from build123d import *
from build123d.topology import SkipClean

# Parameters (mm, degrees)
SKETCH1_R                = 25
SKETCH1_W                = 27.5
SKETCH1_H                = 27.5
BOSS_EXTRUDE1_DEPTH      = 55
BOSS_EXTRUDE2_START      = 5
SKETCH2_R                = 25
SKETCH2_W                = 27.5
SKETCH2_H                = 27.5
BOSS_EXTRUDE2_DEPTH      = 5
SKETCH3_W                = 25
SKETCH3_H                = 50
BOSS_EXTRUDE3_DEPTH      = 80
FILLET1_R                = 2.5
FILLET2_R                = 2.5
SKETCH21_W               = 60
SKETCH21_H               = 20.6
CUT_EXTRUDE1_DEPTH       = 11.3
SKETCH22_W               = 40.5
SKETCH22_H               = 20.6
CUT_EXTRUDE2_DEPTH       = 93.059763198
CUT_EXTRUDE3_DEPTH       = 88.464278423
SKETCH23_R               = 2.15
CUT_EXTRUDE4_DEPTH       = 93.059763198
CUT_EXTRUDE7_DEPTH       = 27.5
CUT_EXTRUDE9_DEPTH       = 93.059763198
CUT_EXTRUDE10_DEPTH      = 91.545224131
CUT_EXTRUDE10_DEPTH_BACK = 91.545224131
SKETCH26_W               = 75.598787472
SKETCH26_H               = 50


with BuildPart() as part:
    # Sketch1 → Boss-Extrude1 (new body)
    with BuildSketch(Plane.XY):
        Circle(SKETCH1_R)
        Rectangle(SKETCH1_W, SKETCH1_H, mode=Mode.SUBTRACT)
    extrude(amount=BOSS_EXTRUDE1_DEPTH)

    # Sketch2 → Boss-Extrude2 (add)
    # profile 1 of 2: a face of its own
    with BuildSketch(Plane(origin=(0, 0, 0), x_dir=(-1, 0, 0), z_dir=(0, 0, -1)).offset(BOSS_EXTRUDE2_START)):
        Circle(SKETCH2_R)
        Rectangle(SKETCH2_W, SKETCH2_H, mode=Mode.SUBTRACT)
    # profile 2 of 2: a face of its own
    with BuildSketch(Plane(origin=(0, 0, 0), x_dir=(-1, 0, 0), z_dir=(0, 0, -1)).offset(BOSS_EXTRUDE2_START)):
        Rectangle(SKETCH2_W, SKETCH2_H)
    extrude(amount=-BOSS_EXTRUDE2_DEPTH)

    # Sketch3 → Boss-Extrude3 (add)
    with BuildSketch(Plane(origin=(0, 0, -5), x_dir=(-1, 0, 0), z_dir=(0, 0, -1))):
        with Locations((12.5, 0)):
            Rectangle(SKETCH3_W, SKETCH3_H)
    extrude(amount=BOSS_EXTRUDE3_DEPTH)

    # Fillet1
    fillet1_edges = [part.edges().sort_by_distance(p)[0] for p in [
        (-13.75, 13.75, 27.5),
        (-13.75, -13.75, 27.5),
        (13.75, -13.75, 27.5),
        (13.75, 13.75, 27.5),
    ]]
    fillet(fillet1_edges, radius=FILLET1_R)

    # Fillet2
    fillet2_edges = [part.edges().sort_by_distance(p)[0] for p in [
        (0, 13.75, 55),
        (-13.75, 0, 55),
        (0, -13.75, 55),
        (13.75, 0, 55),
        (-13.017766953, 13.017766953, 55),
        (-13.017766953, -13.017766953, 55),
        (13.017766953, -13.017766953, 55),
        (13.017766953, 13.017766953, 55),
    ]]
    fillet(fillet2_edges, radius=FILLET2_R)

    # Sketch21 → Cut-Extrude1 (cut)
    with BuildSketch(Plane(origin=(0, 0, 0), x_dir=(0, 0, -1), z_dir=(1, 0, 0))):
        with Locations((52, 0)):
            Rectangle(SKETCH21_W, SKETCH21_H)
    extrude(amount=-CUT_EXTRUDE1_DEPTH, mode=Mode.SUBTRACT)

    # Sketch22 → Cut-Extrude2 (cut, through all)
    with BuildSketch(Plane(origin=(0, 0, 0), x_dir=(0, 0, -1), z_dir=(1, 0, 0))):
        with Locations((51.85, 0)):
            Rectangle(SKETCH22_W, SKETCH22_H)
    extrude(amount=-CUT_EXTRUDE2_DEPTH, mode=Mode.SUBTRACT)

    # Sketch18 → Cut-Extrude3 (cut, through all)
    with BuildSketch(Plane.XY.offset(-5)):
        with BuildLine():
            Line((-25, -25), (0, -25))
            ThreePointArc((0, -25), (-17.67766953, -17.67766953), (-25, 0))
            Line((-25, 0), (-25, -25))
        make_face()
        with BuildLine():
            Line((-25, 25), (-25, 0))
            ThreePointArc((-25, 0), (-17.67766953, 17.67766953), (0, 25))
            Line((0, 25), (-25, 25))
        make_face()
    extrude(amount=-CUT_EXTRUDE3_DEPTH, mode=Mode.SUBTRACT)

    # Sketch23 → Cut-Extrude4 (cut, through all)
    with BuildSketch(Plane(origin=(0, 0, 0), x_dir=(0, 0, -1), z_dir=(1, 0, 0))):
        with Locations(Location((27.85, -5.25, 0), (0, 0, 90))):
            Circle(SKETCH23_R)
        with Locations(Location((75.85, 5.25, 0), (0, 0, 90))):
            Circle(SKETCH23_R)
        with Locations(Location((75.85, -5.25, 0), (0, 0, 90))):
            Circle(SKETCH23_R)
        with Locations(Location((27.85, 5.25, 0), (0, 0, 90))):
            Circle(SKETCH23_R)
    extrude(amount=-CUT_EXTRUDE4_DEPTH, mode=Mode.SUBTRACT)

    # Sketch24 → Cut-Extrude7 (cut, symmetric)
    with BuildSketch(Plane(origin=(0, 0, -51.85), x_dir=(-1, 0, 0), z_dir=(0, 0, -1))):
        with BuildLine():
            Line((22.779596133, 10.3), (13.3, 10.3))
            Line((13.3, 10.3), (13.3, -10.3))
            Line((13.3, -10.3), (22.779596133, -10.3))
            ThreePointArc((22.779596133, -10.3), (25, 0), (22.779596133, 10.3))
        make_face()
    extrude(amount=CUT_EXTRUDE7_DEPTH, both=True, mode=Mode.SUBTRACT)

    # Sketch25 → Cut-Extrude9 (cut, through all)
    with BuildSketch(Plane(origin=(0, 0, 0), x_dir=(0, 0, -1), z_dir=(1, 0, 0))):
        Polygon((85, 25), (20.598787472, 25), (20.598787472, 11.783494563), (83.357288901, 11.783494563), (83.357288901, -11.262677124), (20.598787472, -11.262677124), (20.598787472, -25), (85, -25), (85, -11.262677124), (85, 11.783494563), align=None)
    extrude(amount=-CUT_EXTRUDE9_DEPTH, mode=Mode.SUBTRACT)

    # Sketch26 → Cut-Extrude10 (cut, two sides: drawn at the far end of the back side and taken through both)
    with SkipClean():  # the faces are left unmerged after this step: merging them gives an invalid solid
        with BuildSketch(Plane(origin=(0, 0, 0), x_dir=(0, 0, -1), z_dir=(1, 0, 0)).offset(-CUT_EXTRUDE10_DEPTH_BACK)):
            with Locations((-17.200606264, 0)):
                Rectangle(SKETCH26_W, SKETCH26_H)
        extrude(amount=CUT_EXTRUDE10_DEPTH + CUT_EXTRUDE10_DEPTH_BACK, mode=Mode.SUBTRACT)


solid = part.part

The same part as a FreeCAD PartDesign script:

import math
import FreeCAD as App
import Part
import Sketcher


def edges_at(feature, points):
    """Names of the edges that pass closest to the given points."""
    edges = feature.Shape.Edges
    near = lambda p: min(range(len(edges)), key=lambda i: edges[i].distToShape(Part.Vertex(*p))[0])
    return sorted({f"Edge{near(p) + 1}" for p in points})


def add_polygon(sketch, points):
    """Adds a closed chain of lines whose ends are joined by coincident constraints."""
    first, n = sketch.GeometryCount, len(points)
    for a, b in zip(points, points[1:] + points[:1]):
        sketch.addGeometry(Part.LineSegment(App.Vector(*a, 0), App.Vector(*b, 0)), False)
    for i in range(n):
        sketch.addConstraint(Sketcher.Constraint("Coincident", first + i, 2, first + (i + 1) % n, 1))

doc = App.newDocument("Part")
params = doc.addObject("Spreadsheet::Sheet", "Params")
for row, (alias, value) in enumerate([
    ("sketch1_diameter", "50 mm"),
    ("sketch1_width", "27.5 mm"),
    ("pad1_length", "55 mm"),
    ("sketch2_diameter", "50 mm"),
    ("pad2_length", "5 mm"),
    ("sketch3_width", "25 mm"),
    ("sketch3_height", "50 mm"),
    ("pad3_length", "80 mm"),
    ("fillet_radius", "2.5 mm"),
    ("fillet2_radius", "2.5 mm"),
    ("sketch4_height", "60 mm"),
    ("sketch4_width", "20.6 mm"),
    ("pocket1_length", "11.3 mm"),
    ("sketch5_width", "20.6 mm"),
    ("sketch5_height", "40.5 mm"),
    ("sketch6_radius", "25 mm"),
    ("sketch7_diameter", "4.3 mm"),
    ("sketch8_radius", "25 mm"),
    ("sketch8_height", "20.6 mm"),
    ("pocket5_length", "55 mm"),
    ("sketch9_width", "50 mm"),
    ("sketch10_width", "50 mm"),
], start=1):
    params.set(f"A{row}", alias)
    params.set(f"B{row}", "=" + value)
    params.setAlias(f"B{row}", alias)

body = doc.addObject("PartDesign::Body", "Body")

# Sketch on XY plane
sketch1 = doc.addObject("Sketcher::SketchObject", "Sketch")
body.addObject(sketch1)
sketch1.AttachmentSupport = (doc.XY_Plane, [""])
sketch1.MapMode = "FlatFace"
sketch1.addGeometry(Part.Circle(App.Vector(0, 0, 0), App.Vector(0, 0, 1), 25), False)  # 0
add_polygon(sketch1, [(14, -14), (-14, -14), (-14, 14), (14, 14)])  # lines 1-4
sketch1.addConstraint([
    Sketcher.Constraint("Horizontal", 1),
    Sketcher.Constraint("Vertical", 2),
    Sketcher.Constraint("Horizontal", 3),
    Sketcher.Constraint("Vertical", 4),
    Sketcher.Constraint("Coincident", 0, 3, -1, 1),
    Sketcher.Constraint("Symmetric", 1, 2, 3, 2, -1, 1),
    Sketcher.Constraint("Equal", 3, 2),
    Sketcher.Constraint("Diameter", 0, 50.0),
    Sketcher.Constraint("DistanceX", 1, 2, 1, 1, 27.5),
])
sketch1.setExpression("Constraints[11]", "Params.sketch1_diameter")
sketch1.setExpression("Constraints[12]", "Params.sketch1_width")
pad1 = doc.addObject("PartDesign::Pad", "Pad")
body.addObject(pad1)
pad1.Profile = sketch1
pad1.setExpression("Length", "Params.pad1_length")

# Sketch on XY plane
sketch2 = doc.addObject("Sketcher::SketchObject", "Sketch001")
body.addObject(sketch2)
sketch2.AttachmentSupport = (doc.XY_Plane, [""])
sketch2.MapMode = "FlatFace"
sketch2.AttachmentOffset = App.Placement(App.Vector(0, 0, -5), App.Rotation())
sketch2.addGeometry(Part.Circle(App.Vector(0, 0, 0), App.Vector(0, 0, 1), 25), False)
sketch2.addConstraint([
    Sketcher.Constraint("Coincident", 0, 3, -1, 1),
    Sketcher.Constraint("Diameter", 0, 50.0),
])
sketch2.setExpression("Constraints[1]", "Params.sketch2_diameter")
pad2 = doc.addObject("PartDesign::Pad", "Pad001")
body.addObject(pad2)
pad2.Profile = sketch2
pad2.setExpression("Length", "Params.pad2_length")

# Sketch on XY plane
sketch3 = doc.addObject("Sketcher::SketchObject", "Sketch002")
body.addObject(sketch3)
sketch3.AttachmentSupport = (doc.XY_Plane, [""])
sketch3.MapMode = "FlatFace"
sketch3.AttachmentOffset = App.Placement(App.Vector(0, 0, -5), App.Rotation())
add_polygon(sketch3, [(0, 25), (0, -25), (-25, -25), (-25, 25)])  # lines 0-3
sketch3.addConstraint([
    Sketcher.Constraint("Vertical", 0),
    Sketcher.Constraint("Horizontal", 1),
    Sketcher.Constraint("Vertical", 2),
    Sketcher.Constraint("Horizontal", 3),
    Sketcher.Constraint("Symmetric", 0, 2, 3, 2, -1, 1),
    Sketcher.Constraint("DistanceX", 1, 2, 1, 1, 25.0),
    Sketcher.Constraint("DistanceY", 0, 2, 0, 1, 50.0),
])
sketch3.setExpression("Constraints[9]", "Params.sketch3_width")
sketch3.setExpression("Constraints[10]", "Params.sketch3_height")
pad3 = doc.addObject("PartDesign::Pad", "Pad002")
body.addObject(pad3)
pad3.Profile = sketch3
pad3.setExpression("Length", "Params.pad3_length")
pad3.Reversed = True
doc.recompute()

fillet = doc.addObject("PartDesign::Fillet", "Fillet")
body.addObject(fillet)
fillet.Base = (pad3, edges_at(pad3, [
    (-13.75, 13.75, 27.5),
    (-13.75, -13.75, 27.5),
    (13.75, -13.75, 27.5),
    (13.75, 13.75, 27.5),
]))
fillet.setExpression("Radius", "Params.fillet_radius")
doc.recompute()

fillet2 = doc.addObject("PartDesign::Fillet", "Fillet001")
body.addObject(fillet2)
fillet2.Base = (fillet, edges_at(fillet, [
    (0, 13.75, 55),
    (-13.75, 0, 55),
    (0, -13.75, 55),
    (13.75, 0, 55),
    (-13.018, 13.018, 55),
    (-13.018, -13.018, 55),
    (13.018, -13.018, 55),
    (13.018, 13.018, 55),
]))
fillet2.setExpression("Radius", "Params.fillet2_radius")

# Sketch on YZ plane
sketch4 = doc.addObject("Sketcher::SketchObject", "Sketch003")
body.addObject(sketch4)
sketch4.AttachmentSupport = (doc.YZ_Plane, [""])
sketch4.MapMode = "FlatFace"
add_polygon(sketch4, [(10, -22), (-10, -22), (-10, -82), (10, -82)])  # lines 0-3
sketch4.addConstraint([
    Sketcher.Constraint("Horizontal", 0),
    Sketcher.Constraint("Vertical", 1),
    Sketcher.Constraint("Horizontal", 2),
    Sketcher.Constraint("Vertical", 3),
    Sketcher.Constraint("DistanceY", 1, 2, 1, 1, 60.0),
    Sketcher.Constraint("DistanceX", 0, 2, 0, 1, 20.6),
    Sketcher.Constraint("DistanceY", 0, 2, -1, 1, 22.0),
    Sketcher.Constraint("DistanceX", 0, 2, -1, 1, 10.3),
])
sketch4.setExpression("Constraints[8]", "Params.sketch4_height")
sketch4.setExpression("Constraints[9]", "Params.sketch4_width")
pocket1 = doc.addObject("PartDesign::Pocket", "Pocket")
body.addObject(pocket1)
pocket1.Profile = sketch4
pocket1.setExpression("Length", "Params.pocket1_length")

# Sketch on YZ plane
sketch5 = doc.addObject("Sketcher::SketchObject", "Sketch004")
body.addObject(sketch5)
sketch5.AttachmentSupport = (doc.YZ_Plane, [""])
sketch5.MapMode = "FlatFace"
add_polygon(sketch5, [(10, -32), (-10, -32), (-10, -72), (10, -72)])  # lines 0-3
sketch5.addConstraint([
    Sketcher.Constraint("Horizontal", 0),
    Sketcher.Constraint("Vertical", 1),
    Sketcher.Constraint("Horizontal", 2),
    Sketcher.Constraint("Vertical", 3),
    Sketcher.Constraint("DistanceX", 0, 2, 0, 1, 20.6),
    Sketcher.Constraint("DistanceY", 1, 2, 1, 1, 40.5),
    Sketcher.Constraint("DistanceX", 0, 2, -1, 1, 10.3),
    Sketcher.Constraint("DistanceY", 0, 2, -1, 1, 31.6),
])
sketch5.setExpression("Constraints[8]", "Params.sketch5_width")
sketch5.setExpression("Constraints[9]", "Params.sketch5_height")
pocket2 = doc.addObject("PartDesign::Pocket", "Pocket001")
body.addObject(pocket2)
pocket2.Profile = sketch5
pocket2.Type = "ThroughAll"

# Sketch on XY plane
sketch6 = doc.addObject("Sketcher::SketchObject", "Sketch005")
body.addObject(sketch6)
sketch6.AttachmentSupport = (doc.XY_Plane, [""])
sketch6.MapMode = "FlatFace"
sketch6.AttachmentOffset = App.Placement(App.Vector(0, 0, -5), App.Rotation())
sketch6.addGeometry([
    Part.LineSegment(App.Vector(-25, -25, 0), App.Vector(0, -25, 0)),  # 0
    Part.ArcOfCircle(Part.Circle(App.Vector(0, 0, 0), App.Vector(0, 0, 1), 25), math.radians(180), math.radians(270)),  # 1
    Part.LineSegment(App.Vector(-25, 0, 0), App.Vector(-25, -25, 0)),  # 2
    Part.LineSegment(App.Vector(-25, 25, 0), App.Vector(-25, 0, 0)),  # 3
    Part.ArcOfCircle(Part.Circle(App.Vector(0, 0, 0), App.Vector(0, 0, 1), 25), math.radians(90), math.radians(180)),  # 4
    Part.LineSegment(App.Vector(0, 25, 0), App.Vector(-25, 25, 0)),  # 5
], False)
sketch6.addConstraint([
    Sketcher.Constraint("Tangent", 0, 2, 1, 2),
    Sketcher.Constraint("Tangent", 1, 1, 2, 1),
    Sketcher.Constraint("Coincident", 2, 2, 0, 1),
    Sketcher.Constraint("Tangent", 3, 2, 4, 2),
    Sketcher.Constraint("Tangent", 4, 1, 5, 1),
    Sketcher.Constraint("Coincident", 5, 2, 3, 1),
    Sketcher.Constraint("Horizontal", 0),
    Sketcher.Constraint("Vertical", 2),
    Sketcher.Constraint("Vertical", 3),
    Sketcher.Constraint("Horizontal", 5),
    Sketcher.Constraint("Coincident", 1, 3, -1, 1),
    Sketcher.Constraint("Coincident", 4, 3, -1, 1),
    Sketcher.Constraint("Equal", 1, 4),
    Sketcher.Constraint("Radius", 1, 25.0),
])
sketch6.setExpression("Constraints[13]", "Params.sketch6_radius")
pocket3 = doc.addObject("PartDesign::Pocket", "Pocket002")
body.addObject(pocket3)
pocket3.Profile = sketch6
pocket3.Type = "ThroughAll"

# Sketch on YZ plane
sketch7 = doc.addObject("Sketcher::SketchObject", "Sketch006")
body.addObject(sketch7)
sketch7.AttachmentSupport = (doc.YZ_Plane, [""])
sketch7.MapMode = "FlatFace"
sketch7.addGeometry([
    Part.Circle(App.Vector(-5.2, -27.9, 0), App.Vector(0, 0, 1), 2.1),
    Part.Circle(App.Vector(5.2, -75.8, 0), App.Vector(0, 0, 1), 2.1),
    Part.Circle(App.Vector(-5.2, -75.8, 0), App.Vector(0, 0, 1), 2.1),
    Part.Circle(App.Vector(5.2, -27.9, 0), App.Vector(0, 0, 1), 2.1),
], False)
sketch7.addConstraint([
    Sketcher.Constraint("Equal", 0, 1),
    Sketcher.Constraint("Equal", 1, 2),
    Sketcher.Constraint("Equal", 2, 3),
    Sketcher.Constraint("Symmetric", 1, 3, 2, 3, -2),
    Sketcher.Constraint("Symmetric", 0, 3, 3, 3, -2),
    Sketcher.Constraint("Vertical", 0, 3, 2, 3),
    Sketcher.Constraint("Diameter", 0, 4.3),
    Sketcher.Constraint("DistanceY", 1, 3, 0, 3, 48.0),
    Sketcher.Constraint("DistanceX", 0, 3, 1, 3, 10.5),
    Sketcher.Constraint("DistanceY", 0, 3, -1, 1, 27.85),
])
sketch7.setExpression("Constraints[6]", "Params.sketch7_diameter")
pocket4 = doc.addObject("PartDesign::Pocket", "Pocket003")
body.addObject(pocket4)
pocket4.Profile = sketch7
pocket4.Type = "ThroughAll"

# Sketch on XY plane
sketch8 = doc.addObject("Sketcher::SketchObject", "Sketch007")
body.addObject(sketch8)
sketch8.AttachmentSupport = (doc.XY_Plane, [""])
sketch8.MapMode = "FlatFace"
sketch8.AttachmentOffset = App.Placement(App.Vector(0, 0, -51.85), App.Rotation())
sketch8.addGeometry([
    Part.LineSegment(App.Vector(-23, 10, 0), App.Vector(-13, 10, 0)),
    Part.LineSegment(App.Vector(-13, 10, 0), App.Vector(-13, -10, 0)),
    Part.LineSegment(App.Vector(-13, -10, 0), App.Vector(-23, -10, 0)),
    Part.ArcOfCircle(Part.Circle(App.Vector(0, 0, 0), App.Vector(0, 0, 1), 25), math.radians(156), math.radians(204)),
], False)
sketch8.addConstraint([
    Sketcher.Constraint("Coincident", 0, 2, 1, 1),
    Sketcher.Constraint("Coincident", 1, 2, 2, 1),
    Sketcher.Constraint("Coincident", 2, 2, 3, 2),
    Sketcher.Constraint("Coincident", 3, 1, 0, 1),
    Sketcher.Constraint("Horizontal", 0),
    Sketcher.Constraint("Vertical", 1),
    Sketcher.Constraint("Horizontal", 2),
    Sketcher.Constraint("Coincident", 3, 3, -1, 1),
    Sketcher.Constraint("Vertical", 2, 2, 3, 1),
    Sketcher.Constraint("Radius", 3, 25.0),
    Sketcher.Constraint("DistanceY", 1, 2, 1, 1, 20.6),
    Sketcher.Constraint("DistanceX", 0, 2, -1, 1, 13.3),
])
sketch8.setExpression("Constraints[9]", "Params.sketch8_radius")
sketch8.setExpression("Constraints[10]", "Params.sketch8_height")
pocket5 = doc.addObject("PartDesign::Pocket", "Pocket004")
body.addObject(pocket5)
pocket5.Profile = sketch8
pocket5.setExpression("Length", "Params.pocket5_length")
pocket5.Midplane = True

# Sketch on YZ plane
sketch9 = doc.addObject("Sketcher::SketchObject", "Sketch008")
body.addObject(sketch9)
sketch9.AttachmentSupport = (doc.YZ_Plane, [""])
sketch9.MapMode = "FlatFace"
add_polygon(sketch9, [(25, -85), (25, -21), (12, -21), (12, -83), (-11, -83), (-11, -21), (-25, -21), (-25, -85)])  # lines 0-7
sketch9.addConstraint([
    Sketcher.Constraint("Vertical", 0),
    Sketcher.Constraint("Horizontal", 1),
    Sketcher.Constraint("Vertical", 2),
    Sketcher.Constraint("Horizontal", 3),
    Sketcher.Constraint("Vertical", 4),
    Sketcher.Constraint("Horizontal", 5),
    Sketcher.Constraint("Vertical", 6),
    Sketcher.Constraint("Horizontal", 7),
    Sketcher.Constraint("Symmetric", 0, 2, 5, 2, -2),
    Sketcher.Constraint("DistanceX", 7, 1, 7, 2, 50.0),
    Sketcher.Constraint("DistanceY", 6, 2, -1, 1, 85.0),
    Sketcher.Constraint("DistanceY", 2, 2, 2, 1, 62.758501),
    Sketcher.Constraint("DistanceX", 3, 2, 3, 1, 23.046172),
    Sketcher.Constraint("DistanceX", 1, 2, 1, 1, 13.216505),
    Sketcher.Constraint("DistanceY", 0, 1, 0, 2, 64.401213),
])
sketch9.setExpression("Constraints[17]", "Params.sketch9_width")
pocket6 = doc.addObject("PartDesign::Pocket", "Pocket005")
body.addObject(pocket6)
pocket6.Profile = sketch9
pocket6.Type = "ThroughAll"

# Sketch on YZ plane
sketch10 = doc.addObject("Sketcher::SketchObject", "Sketch009")
body.addObject(sketch10)
sketch10.AttachmentSupport = (doc.YZ_Plane, [""])
sketch10.MapMode = "FlatFace"
add_polygon(sketch10, [(25, 55), (-25, 55), (-25, -21), (25, -21)])  # lines 0-3
sketch10.addConstraint([
    Sketcher.Constraint("Horizontal", 0),
    Sketcher.Constraint("Vertical", 1),
    Sketcher.Constraint("Horizontal", 2),
    Sketcher.Constraint("Vertical", 3),
    Sketcher.Constraint("DistanceX", 0, 2, 0, 1, 50.0),
    Sketcher.Constraint("DistanceX", 0, 2, -1, 1, 25.0),
    Sketcher.Constraint("DistanceY", -1, 1, 0, 2, 55.0),
    Sketcher.Constraint("DistanceY", 1, 2, 1, 1, 75.598787),
])
sketch10.setExpression("Constraints[8]", "Params.sketch10_width")
pocket7 = doc.addObject("PartDesign::Pocket", "Pocket006")
body.addObject(pocket7)
pocket7.Profile = sketch10
pocket7.Type = "ThroughAll"
pocket7.Midplane = True

doc.recompute()
